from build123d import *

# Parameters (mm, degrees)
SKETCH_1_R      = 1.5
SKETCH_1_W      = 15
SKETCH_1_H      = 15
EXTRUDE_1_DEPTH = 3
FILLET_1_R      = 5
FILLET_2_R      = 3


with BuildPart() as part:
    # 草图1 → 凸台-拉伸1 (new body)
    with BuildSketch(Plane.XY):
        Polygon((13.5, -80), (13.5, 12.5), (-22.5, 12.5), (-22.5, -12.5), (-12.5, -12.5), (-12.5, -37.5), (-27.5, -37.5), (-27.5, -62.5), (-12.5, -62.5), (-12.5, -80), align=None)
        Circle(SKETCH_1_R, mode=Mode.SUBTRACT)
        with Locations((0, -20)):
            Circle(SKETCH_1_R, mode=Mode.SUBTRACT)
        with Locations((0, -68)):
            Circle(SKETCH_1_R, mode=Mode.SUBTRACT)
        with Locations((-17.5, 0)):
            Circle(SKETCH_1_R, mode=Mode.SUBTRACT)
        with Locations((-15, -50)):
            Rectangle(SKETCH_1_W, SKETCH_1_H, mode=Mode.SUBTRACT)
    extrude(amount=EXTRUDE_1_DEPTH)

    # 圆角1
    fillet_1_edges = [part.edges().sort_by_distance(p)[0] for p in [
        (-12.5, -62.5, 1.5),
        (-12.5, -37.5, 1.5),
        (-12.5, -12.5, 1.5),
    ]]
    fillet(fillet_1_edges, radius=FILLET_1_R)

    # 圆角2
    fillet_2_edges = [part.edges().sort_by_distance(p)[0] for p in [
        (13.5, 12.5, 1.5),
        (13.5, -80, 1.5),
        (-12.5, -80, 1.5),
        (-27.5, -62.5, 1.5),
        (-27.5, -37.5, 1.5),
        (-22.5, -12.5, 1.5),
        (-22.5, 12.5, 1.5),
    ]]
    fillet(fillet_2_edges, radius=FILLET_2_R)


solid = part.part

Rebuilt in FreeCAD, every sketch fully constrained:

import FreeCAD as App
import Part
import Sketcher


def edges_at(feature, points):
    """Names of the edges that pass closest to the given points."""
    edges = feature.Shape.Edges
    near = lambda p: min(range(len(edges)), key=lambda i: edges[i].distToShape(Part.Vertex(*p))[0])
    return sorted({f"Edge{near(p) + 1}" for p in points})

doc = App.newDocument("Part")
params = doc.addObject("Spreadsheet::Sheet", "Params")
for row, (alias, value) in enumerate([
    ("sketch1_diameter", "3 mm"),
    ("sketch1_width", "36 mm"),
    ("sketch1_width2", "10 mm"),
    ("sketch1_width3", "15 mm"),
    ("sketch1_height", "25 mm"),
    ("pad1_length", "3 mm"),
    ("fillet_radius", "5 mm"),
    ("fillet2_radius", "3 mm"),
], start=1):
    params.set(f"A{row}", alias)
    params.set(f"B{row}", "=" + value)
    params.setAlias(f"B{row}", alias)

body = doc.addObject("PartDesign::Body", "Body")

sketch1 = doc.addObject("Sketcher::SketchObject", "Sketch")
body.addObject(sketch1)
sketch1.AttachmentSupport = (doc.XY_Plane, [""])
sketch1.MapMode = "FlatFace"
sketch1.addGeometry(Part.LineSegment(App.Vector(13.5, -80, 0), App.Vector(13.5, 12.5, 0)), False)
sketch1.addGeometry(Part.LineSegment(App.Vector(13.5, 12.5, 0), App.Vector(-22.5, 12.5, 0)), False)
sketch1.addGeometry(Part.LineSegment(App.Vector(-22.5, 12.5, 0), App.Vector(-22.5, -12.5, 0)), False)
sketch1.addGeometry(Part.LineSegment(App.Vector(-22.5, -12.5, 0), App.Vector(-12.5, -12.5, 0)), False)
sketch1.addGeometry(Part.LineSegment(App.Vector(-12.5, -12.5, 0), App.Vector(-12.5, -37.5, 0)), False)
sketch1.addGeometry(Part.LineSegment(App.Vector(-12.5, -37.5, 0), App.Vector(-27.5, -37.5, 0)), False)
sketch1.addGeometry(Part.LineSegment(App.Vector(-27.5, -37.5, 0), App.Vector(-27.5, -62.5, 0)), False)
sketch1.addGeometry(Part.LineSegment(App.Vector(-27.5, -62.5, 0), App.Vector(-12.5, -62.5, 0)), False)
sketch1.addGeometry(Part.LineSegment(App.Vector(-12.5, -62.5, 0), App.Vector(-12.5, -80, 0)), False)
sketch1.addGeometry(Part.LineSegment(App.Vector(-12.5, -80, 0), App.Vector(13.5, -80, 0)), False)
sketch1.addGeometry(Part.LineSegment(App.Vector(-7.5, -57.5, 0), App.Vector(-22.5, -57.5, 0)), False)
sketch1.addGeometry(Part.LineSegment(App.Vector(-22.5, -57.5, 0), App.Vector(-22.5, -42.5, 0)), False)
sketch1.addGeometry(Part.LineSegment(App.Vector(-22.5, -42.5, 0), App.Vector(-7.5, -42.5, 0)), False)
sketch1.addGeometry(Part.LineSegment(App.Vector(-7.5, -42.5, 0), App.Vector(-7.5, -57.5, 0)), False)
sketch1.addGeometry(Part.Circle(App.Vector(0, -68, 0), App.Vector(0, 0, 1), 1.5), False)
sketch1.addGeometry(Part.Circle(App.Vector(-17.5, 0, 0), App.Vector(0, 0, 1), 1.5), False)
sketch1.addGeometry(Part.Circle(App.Vector(0, -20, 0), App.Vector(0, 0, 1), 1.5), False)
sketch1.addGeometry(Part.Circle(App.Vector(0, 0, 0), App.Vector(0, 0, 1), 1.5), False)
sketch1.addConstraint(Sketcher.Constraint("Coincident", 0, 2, 1, 1))
sketch1.addConstraint(Sketcher.Constraint("Coincident", 1, 2, 2, 1))
sketch1.addConstraint(Sketcher.Constraint("Coincident", 2, 2, 3, 1))
sketch1.addConstraint(Sketcher.Constraint("Coincident", 3, 2, 4, 1))
sketch1.addConstraint(Sketcher.Constraint("Coincident", 4, 2, 5, 1))
sketch1.addConstraint(Sketcher.Constraint("Coincident", 5, 2, 6, 1))
sketch1.addConstraint(Sketcher.Constraint("Coincident", 6, 2, 7, 1))
sketch1.addConstraint(Sketcher.Constraint("Coincident", 7, 2, 8, 1))
sketch1.addConstraint(Sketcher.Constraint("Coincident", 8, 2, 9, 1))
sketch1.addConstraint(Sketcher.Constraint("Coincident", 9, 2, 0, 1))
sketch1.addConstraint(Sketcher.Constraint("Coincident", 10, 2, 11, 1))
sketch1.addConstraint(Sketcher.Constraint("Coincident", 11, 2, 12, 1))
sketch1.addConstraint(Sketcher.Constraint("Coincident", 12, 2, 13, 1))
sketch1.addConstraint(Sketcher.Constraint("Coincident", 13, 2, 10, 1))
sketch1.addConstraint(Sketcher.Constraint("Vertical", 0))
sketch1.addConstraint(Sketcher.Constraint("Horizontal", 1))
sketch1.addConstraint(Sketcher.Constraint("Vertical", 2))
sketch1.addConstraint(Sketcher.Constraint("Horizontal", 3))
sketch1.addConstraint(Sketcher.Constraint("Vertical", 4))
sketch1.addConstraint(Sketcher.Constraint("Horizontal", 5))
sketch1.addConstraint(Sketcher.Constraint("Vertical", 6))
sketch1.addConstraint(Sketcher.Constraint("Horizontal", 7))
sketch1.addConstraint(Sketcher.Constraint("Vertical", 8))
sketch1.addConstraint(Sketcher.Constraint("Horizontal", 9))
sketch1.addConstraint(Sketcher.Constraint("Horizontal", 10))
sketch1.addConstraint(Sketcher.Constraint("Vertical", 11))
sketch1.addConstraint(Sketcher.Constraint("Horizontal", 12))
sketch1.addConstraint(Sketcher.Constraint("Vertical", 13))
sketch1.addConstraint(Sketcher.Constraint("Coincident", 17, 3, -1, 1))
sketch1.addConstraint(Sketcher.Constraint("Equal", 14, 15))
sketch1.addConstraint(Sketcher.Constraint("Equal", 15, 16))
sketch1.addConstraint(Sketcher.Constraint("Equal", 16, 17))
sketch1.addConstraint(Sketcher.Constraint("PointOnObject", 14, 3, -2))
sketch1.addConstraint(Sketcher.Constraint("PointOnObject", 15, 3, -1))
sketch1.addConstraint(Sketcher.Constraint("PointOnObject", 16, 3, -2))
sketch1.addConstraint(Sketcher.Constraint("Vertical", 4, 2, 7, 2))
sketch1.addConstraint(Sketcher.Constraint("Vertical", 2, 2, 10, 2))
sketch1.addConstraint(Sketcher.Constraint("Equal", 7, 10))
sketch1.addConstraint(Sketcher.Constraint("Equal", 2, 4))
sketch1.addConstraint(Sketcher.Constraint("Equal", 4, 6))
sketch1.addConstraint(Sketcher.Constraint("Equal", 12, 11))
sketch1.addConstraint(Sketcher.Constraint("Diameter", 14, 3.0))
sketch1.addConstraint(Sketcher.Constraint("DistanceX", 1, 2, 1, 1, 36.0))
sketch1.addConstraint(Sketcher.Constraint("DistanceX", 3, 1, 3, 2, 10.0))
sketch1.addConstraint(Sketcher.Constraint("DistanceX", 5, 2, 5, 1, 15.0))
sketch1.addConstraint(Sketcher.Constraint("DistanceY", 2, 2, 2, 1, 25.0))
sketch1.addConstraint(Sketcher.Constraint("DistanceY", 0, 1, 0, 2, 92.5))
sketch1.addConstraint(Sketcher.Constraint("DistanceY", 14, 3, -1, 1, 68.0))
sketch1.addConstraint(Sketcher.Constraint("DistanceY", 16, 3, -1, 1, 20.0))
sketch1.addConstraint(Sketcher.Constraint("DistanceY", 8, 2, -1, 1, 80.0))
sketch1.addConstraint(Sketcher.Constraint("DistanceX", 15, 3, 0, 2, 31.0))
sketch1.addConstraint(Sketcher.Constraint("DistanceY", 6, 2, 10, 2, 5.0))
sketch1.addConstraint(Sketcher.Constraint("DistanceX", 15, 3, -1, 1, 17.5))
sketch1.setExpression("Constraints[41]", "Params.sketch1_diameter")
sketch1.setExpression("Constraints[42]", "Params.sketch1_width")
sketch1.setExpression("Constraints[43]", "Params.sketch1_width2")
sketch1.setExpression("Constraints[44]", "Params.sketch1_width3")
sketch1.setExpression("Constraints[45]", "Params.sketch1_height")
pad1 = doc.addObject("PartDesign::Pad", "Pad")
body.addObject(pad1)
pad1.Profile = sketch1
pad1.setExpression("Length", "Params.pad1_length")
doc.recompute()

fillet = doc.addObject("PartDesign::Fillet", "Fillet")
body.addObject(fillet)
fillet.Base = (pad1, edges_at(pad1, [(-12.5, -62.5, 1.5), (-12.5, -37.5, 1.5), (-12.5, -12.5, 1.5)]))
fillet.setExpression("Radius", "Params.fillet_radius")
doc.recompute()

fillet2 = doc.addObject("PartDesign::Fillet", "Fillet001")
body.addObject(fillet2)
fillet2.Base = (fillet, edges_at(fillet, [
    (13.5, 12.5, 1.5),
    (13.5, -80, 1.5),
    (-12.5, -80, 1.5),
    (-27.5, -62.5, 1.5),
    (-27.5, -37.5, 1.5),
    (-22.5, -12.5, 1.5),
    (-22.5, 12.5, 1.5),
]))
fillet2.setExpression("Radius", "Params.fillet2_radius")

doc.recompute()
